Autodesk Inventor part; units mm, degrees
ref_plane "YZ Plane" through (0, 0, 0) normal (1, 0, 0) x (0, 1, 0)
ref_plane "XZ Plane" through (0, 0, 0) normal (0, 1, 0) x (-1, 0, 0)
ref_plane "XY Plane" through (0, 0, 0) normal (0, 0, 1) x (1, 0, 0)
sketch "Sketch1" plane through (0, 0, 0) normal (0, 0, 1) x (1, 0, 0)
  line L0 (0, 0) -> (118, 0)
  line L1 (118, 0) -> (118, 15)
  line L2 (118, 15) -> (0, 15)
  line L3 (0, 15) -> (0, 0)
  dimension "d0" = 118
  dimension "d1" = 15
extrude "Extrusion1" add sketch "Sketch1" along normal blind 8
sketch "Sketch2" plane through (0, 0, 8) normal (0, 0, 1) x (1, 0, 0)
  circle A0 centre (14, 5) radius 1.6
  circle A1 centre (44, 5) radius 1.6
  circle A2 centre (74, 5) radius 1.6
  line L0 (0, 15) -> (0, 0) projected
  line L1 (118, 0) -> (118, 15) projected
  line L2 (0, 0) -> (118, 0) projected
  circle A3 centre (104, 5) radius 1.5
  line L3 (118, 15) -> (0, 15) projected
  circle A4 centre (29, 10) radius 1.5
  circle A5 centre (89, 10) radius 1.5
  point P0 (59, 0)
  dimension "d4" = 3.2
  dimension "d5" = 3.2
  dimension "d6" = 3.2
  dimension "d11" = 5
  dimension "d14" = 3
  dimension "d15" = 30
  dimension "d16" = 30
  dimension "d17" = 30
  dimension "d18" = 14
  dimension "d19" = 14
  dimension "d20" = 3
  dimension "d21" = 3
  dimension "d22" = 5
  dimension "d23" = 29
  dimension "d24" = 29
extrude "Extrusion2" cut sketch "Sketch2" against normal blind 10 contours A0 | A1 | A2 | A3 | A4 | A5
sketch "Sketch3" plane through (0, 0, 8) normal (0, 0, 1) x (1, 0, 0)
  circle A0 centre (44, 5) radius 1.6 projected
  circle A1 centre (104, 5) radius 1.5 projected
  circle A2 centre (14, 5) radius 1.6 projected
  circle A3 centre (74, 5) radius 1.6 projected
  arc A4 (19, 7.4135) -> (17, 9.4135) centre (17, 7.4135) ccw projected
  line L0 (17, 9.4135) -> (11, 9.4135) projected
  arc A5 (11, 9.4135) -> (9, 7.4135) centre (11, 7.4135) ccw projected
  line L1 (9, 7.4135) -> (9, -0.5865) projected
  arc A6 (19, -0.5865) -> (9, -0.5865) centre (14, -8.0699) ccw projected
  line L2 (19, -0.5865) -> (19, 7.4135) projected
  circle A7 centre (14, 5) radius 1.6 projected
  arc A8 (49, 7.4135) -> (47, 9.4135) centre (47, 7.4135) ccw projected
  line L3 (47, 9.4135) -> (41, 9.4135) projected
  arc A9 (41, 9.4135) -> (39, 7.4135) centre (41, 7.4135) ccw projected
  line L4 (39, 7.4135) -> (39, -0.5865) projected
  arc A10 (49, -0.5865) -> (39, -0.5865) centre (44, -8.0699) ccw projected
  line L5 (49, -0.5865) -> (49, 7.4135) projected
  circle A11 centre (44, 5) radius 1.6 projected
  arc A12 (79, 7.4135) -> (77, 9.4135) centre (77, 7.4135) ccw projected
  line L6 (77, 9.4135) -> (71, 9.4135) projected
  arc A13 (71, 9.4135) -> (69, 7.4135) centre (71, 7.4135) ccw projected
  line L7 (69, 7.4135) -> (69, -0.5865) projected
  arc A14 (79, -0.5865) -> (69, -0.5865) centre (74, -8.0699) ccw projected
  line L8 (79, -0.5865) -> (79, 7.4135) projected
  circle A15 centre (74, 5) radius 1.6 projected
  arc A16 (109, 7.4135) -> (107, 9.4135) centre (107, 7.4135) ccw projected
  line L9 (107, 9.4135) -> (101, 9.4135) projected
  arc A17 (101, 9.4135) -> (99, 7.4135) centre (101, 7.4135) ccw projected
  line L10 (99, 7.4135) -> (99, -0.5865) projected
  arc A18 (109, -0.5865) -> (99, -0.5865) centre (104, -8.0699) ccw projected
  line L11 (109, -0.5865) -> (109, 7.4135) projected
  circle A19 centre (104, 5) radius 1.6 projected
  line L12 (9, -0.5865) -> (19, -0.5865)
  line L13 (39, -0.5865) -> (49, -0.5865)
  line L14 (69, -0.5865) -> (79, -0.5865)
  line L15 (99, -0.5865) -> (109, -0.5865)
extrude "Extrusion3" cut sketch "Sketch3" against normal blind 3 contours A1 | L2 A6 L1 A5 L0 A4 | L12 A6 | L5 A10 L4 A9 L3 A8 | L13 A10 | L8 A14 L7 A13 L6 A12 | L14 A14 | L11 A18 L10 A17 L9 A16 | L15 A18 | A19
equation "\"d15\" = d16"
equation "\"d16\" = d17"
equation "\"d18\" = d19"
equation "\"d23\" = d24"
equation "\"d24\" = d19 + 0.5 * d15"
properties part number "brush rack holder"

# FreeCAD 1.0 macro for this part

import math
import FreeCAD as App
import Part
import Sketcher


def add_polygon(sketch, points):
    """Adds a closed chain of lines whose ends are joined by coincident constraints."""
    first, n = sketch.GeometryCount, len(points)
    for a, b in zip(points, points[1:] + points[:1]):
        sketch.addGeometry(Part.LineSegment(App.Vector(*a, 0), App.Vector(*b, 0)), False)
    for i in range(n):
        sketch.addConstraint(Sketcher.Constraint("Coincident", first + i, 2, first + (i + 1) % n, 1))

doc = App.newDocument("Part")
body = doc.addObject("PartDesign::Body", "Body")

# Sketch on XY plane
sketch1 = body.newObject("Sketcher::SketchObject", "Sketch")
sketch1.AttachmentSupport = (doc.getObject("XY_Plane"), [""])
sketch1.MapMode = "FlatFace"
add_polygon(sketch1, [(0, 15), (0, 0), (118, 0), (118, 15)])  # lines 0-3
sketch1.addConstraint(Sketcher.Constraint("Vertical", 0))
sketch1.addConstraint(Sketcher.Constraint("Horizontal", 1))
sketch1.addConstraint(Sketcher.Constraint("Vertical", 2))
sketch1.addConstraint(Sketcher.Constraint("Horizontal", 3))
sketch1.addConstraint(Sketcher.Constraint("Coincident", 0, 2, -1, 1))
sketch1.addConstraint(Sketcher.Constraint("DistanceX", 1, 1, 1, 2, 118.0))
sketch1.addConstraint(Sketcher.Constraint("DistanceY", 0, 2, 0, 1, 15.0))
pad1 = body.newObject("PartDesign::Pad", "Pad")
pad1.Profile = sketch1
pad1.Length = 8

# Sketch on XY plane
sketch2 = body.newObject("Sketcher::SketchObject", "Sketch001")
sketch2.AttachmentSupport = (doc.getObject("XY_Plane"), [""])
sketch2.MapMode = "FlatFace"
sketch2.AttachmentOffset = App.Placement(App.Vector(0, 0, 8), App.Rotation())
sketch2.addGeometry(Part.Circle(App.Vector(14, 5, 0), App.Vector(0, 0, 1), 1.6), False)
sketch2.addGeometry(Part.Circle(App.Vector(44, 5, 0), App.Vector(0, 0, 1), 1.6), False)
sketch2.addGeometry(Part.Circle(App.Vector(74, 5, 0), App.Vector(0, 0, 1), 1.6), False)
sketch2.addGeometry(Part.Circle(App.Vector(104, 5, 0), App.Vector(0, 0, 1), 1.5), False)
sketch2.addGeometry(Part.Circle(App.Vector(29, 10, 0), App.Vector(0, 0, 1), 1.5), False)
sketch2.addGeometry(Part.Circle(App.Vector(89, 10, 0), App.Vector(0, 0, 1), 1.5), False)
sketch2.addConstraint(Sketcher.Constraint("Equal", 0, 1))
sketch2.addConstraint(Sketcher.Constraint("Equal", 1, 2))
sketch2.addConstraint(Sketcher.Constraint("Equal", 3, 4))
sketch2.addConstraint(Sketcher.Constraint("Equal", 4, 5))
sketch2.addConstraint(Sketcher.Constraint("Horizontal", 0, 3, 1, 3))
sketch2.addConstraint(Sketcher.Constraint("Horizontal", 1, 3, 2, 3))
sketch2.addConstraint(Sketcher.Constraint("Horizontal", 2, 3, 3, 3))
sketch2.addConstraint(Sketcher.Constraint("Horizontal", 4, 3, 5, 3))
sketch2.addConstraint(Sketcher.Constraint("Diameter", 3, 3.0))
sketch2.addConstraint(Sketcher.Constraint("Diameter", 0, 3.2))
sketch2.addConstraint(Sketcher.Constraint("DistanceX", -1, 1, 0, 3, 14.0))
sketch2.addConstraint(Sketcher.Constraint("DistanceY", -1, 1, 0, 3, 5.0))
sketch2.addConstraint(Sketcher.Constraint("DistanceX", -1, 1, 4, 3, 29.0))
sketch2.addConstraint(Sketcher.Constraint("DistanceX", 0, 3, 1, 3, 30.0))
sketch2.addConstraint(Sketcher.Constraint("DistanceX", 1, 3, 2, 3, 30.0))
sketch2.addConstraint(Sketcher.Constraint("DistanceX", 2, 3, 3, 3, 30.0))
sketch2.addConstraint(Sketcher.Constraint("DistanceY", 0, 3, 4, 3, 5.0))
sketch2.addConstraint(Sketcher.Constraint("DistanceX", -1, 1, 5, 3, 89.0))
pocket1 = body.newObject("PartDesign::Pocket", "Pocket")
pocket1.Profile = sketch2
pocket1.Length = 10

# Sketch on XY plane
sketch3 = body.newObject("Sketcher::SketchObject", "Sketch002")
sketch3.AttachmentSupport = (doc.getObject("XY_Plane"), [""])
sketch3.MapMode = "FlatFace"
sketch3.AttachmentOffset = App.Placement(App.Vector(0, 0, 8), App.Rotation())
sketch3.addGeometry(Part.LineSegment(App.Vector(109, -0.5865, 0), App.Vector(109, 7.4135, 0)), False)
sketch3.addGeometry(Part.ArcOfCircle(Part.Circle(App.Vector(107, 7.4135, 0), App.Vector(0, 0, 1), 2), math.radians(0), math.radians(90)), False)
sketch3.addGeometry(Part.LineSegment(App.Vector(107, 9.4135, 0), App.Vector(101, 9.4135, 0)), False)
sketch3.addGeometry(Part.ArcOfCircle(Part.Circle(App.Vector(101, 7.4135, 0), App.Vector(0, 0, 1), 2), math.radians(90), math.radians(180)), False)
sketch3.addGeometry(Part.LineSegment(App.Vector(99, 7.4135, 0), App.Vector(99, -0.5865, 0)), False)
sketch3.addGeometry(Part.LineSegment(App.Vector(99, -0.5865, 0), App.Vector(109, -0.5865, 0)), False)
sketch3.addGeometry(Part.LineSegment(App.Vector(19, -0.5865, 0), App.Vector(19, 7.4135, 0)), False)
sketch3.addGeometry(Part.ArcOfCircle(Part.Circle(App.Vector(17, 7.4135, 0), App.Vector(0, 0, 1), 2), math.radians(0), math.radians(90)), False)
sketch3.addGeometry(Part.LineSegment(App.Vector(17, 9.4135, 0), App.Vector(11, 9.4135, 0)), False)
sketch3.addGeometry(Part.ArcOfCircle(Part.Circle(App.Vector(11, 7.4135, 0), App.Vector(0, 0, 1), 2), math.radians(90), math.radians(180)), False)
sketch3.addGeometry(Part.LineSegment(App.Vector(9, 7.4135, 0), App.Vector(9, -0.5865, 0)), False)
sketch3.addGeometry(Part.LineSegment(App.Vector(9, -0.5865, 0), App.Vector(19, -0.5865, 0)), False)
sketch3.addGeometry(Part.Circle(App.Vector(14, 5, 0), App.Vector(0, 0, 1), 1.6), False)
sketch3.addGeometry(Part.LineSegment(App.Vector(49, -0.5865, 0), App.Vector(49, 7.4135, 0)), False)
sketch3.addGeometry(Part.ArcOfCircle(Part.Circle(App.Vector(47, 7.4135, 0), App.Vector(0, 0, 1), 2), math.radians(0), math.radians(90)), False)
sketch3.addGeometry(Part.LineSegment(App.Vector(47, 9.4135, 0), App.Vector(41, 9.4135, 0)), False)
sketch3.addGeometry(Part.ArcOfCircle(Part.Circle(App.Vector(41, 7.4135, 0), App.Vector(0, 0, 1), 2), math.radians(90), math.radians(180)), False)
sketch3.addGeometry(Part.LineSegment(App.Vector(39, 7.4135, 0), App.Vector(39, -0.5865, 0)), False)
sketch3.addGeometry(Part.LineSegment(App.Vector(39, -0.5865, 0), App.Vector(49, -0.5865, 0)), False)
sketch3.addGeometry(Part.Circle(App.Vector(44, 5, 0), App.Vector(0, 0, 1), 1.6), False)
sketch3.addGeometry(Part.LineSegment(App.Vector(79, -0.5865, 0), App.Vector(79, 7.4135, 0)), False)
sketch3.addGeometry(Part.ArcOfCircle(Part.Circle(App.Vector(77, 7.4135, 0), App.Vector(0, 0, 1), 2), math.radians(0), math.radians(90)), False)
sketch3.addGeometry(Part.LineSegment(App.Vector(77, 9.4135, 0), App.Vector(71, 9.4135, 0)), False)
sketch3.addGeometry(Part.ArcOfCircle(Part.Circle(App.Vector(71, 7.4135, 0), App.Vector(0, 0, 1), 2), math.radians(90), math.radians(180)), False)
sketch3.addGeometry(Part.LineSegment(App.Vector(69, 7.4135, 0), App.Vector(69, -0.5865, 0)), False)
sketch3.addGeometry(Part.LineSegment(App.Vector(69, -0.5865, 0), App.Vector(79, -0.5865, 0)), False)
sketch3.addGeometry(Part.Circle(App.Vector(74, 5, 0), App.Vector(0, 0, 1), 1.6), False)
sketch3.addConstraint(Sketcher.Constraint("Tangent", 0, 2, 1, 1))
sketch3.addConstraint(Sketcher.Constraint("Tangent", 1, 2, 2, 1))
sketch3.addConstraint(Sketcher.Constraint("Tangent", 2, 2, 3, 1))
sketch3.addConstraint(Sketcher.Constraint("Tangent", 3, 2, 4, 1))
sketch3.addConstraint(Sketcher.Constraint("Coincident", 4, 2, 5, 1))
sketch3.addConstraint(Sketcher.Constraint("Coincident", 5, 2, 0, 1))
sketch3.addConstraint(Sketcher.Constraint("Tangent", 6, 2, 7, 1))
sketch3.addConstraint(Sketcher.Constraint("Tangent", 7, 2, 8, 1))
sketch3.addConstraint(Sketcher.Constraint("Tangent", 8, 2, 9, 1))
sketch3.addConstraint(Sketcher.Constraint("Tangent", 9, 2, 10, 1))
sketch3.addConstraint(Sketcher.Constraint("Coincident", 10, 2, 11, 1))
sketch3.addConstraint(Sketcher.Constraint("Coincident", 11, 2, 6, 1))
sketch3.addConstraint(Sketcher.Constraint("Tangent", 13, 2, 14, 1))
sketch3.addConstraint(Sketcher.Constraint("Tangent", 14, 2, 15, 1))
sketch3.addConstraint(Sketcher.Constraint("Tangent", 15, 2, 16, 1))
sketch3.addConstraint(Sketcher.Constraint("Tangent", 16, 2, 17, 1))
sketch3.addConstraint(Sketcher.Constraint("Coincident", 17, 2, 18, 1))
sketch3.addConstraint(Sketcher.Constraint("Coincident", 18, 2, 13, 1))
sketch3.addConstraint(Sketcher.Constraint("Tangent", 20, 2, 21, 1))
sketch3.addConstraint(Sketcher.Constraint("Tangent", 21, 2, 22, 1))
sketch3.addConstraint(Sketcher.Constraint("Tangent", 22, 2, 23, 1))
sketch3.addConstraint(Sketcher.Constraint("Tangent", 23, 2, 24, 1))
sketch3.addConstraint(Sketcher.Constraint("Coincident", 24, 2, 25, 1))
sketch3.addConstraint(Sketcher.Constraint("Coincident", 25, 2, 20, 1))
sketch3.addConstraint(Sketcher.Constraint("Vertical", 0))
sketch3.addConstraint(Sketcher.Constraint("Horizontal", 2))
sketch3.addConstraint(Sketcher.Constraint("Vertical", 4))
sketch3.addConstraint(Sketcher.Constraint("Horizontal", 5))
sketch3.addConstraint(Sketcher.Constraint("Vertical", 6))
sketch3.addConstraint(Sketcher.Constraint("Horizontal", 8))
sketch3.addConstraint(Sketcher.Constraint("Vertical", 10))
sketch3.addConstraint(Sketcher.Constraint("Horizontal", 11))
sketch3.addConstraint(Sketcher.Constraint("Vertical", 13))
sketch3.addConstraint(Sketcher.Constraint("Horizontal", 15))
sketch3.addConstraint(Sketcher.Constraint("Vertical", 17))
sketch3.addConstraint(Sketcher.Constraint("Horizontal", 18))
sketch3.addConstraint(Sketcher.Constraint("Vertical", 20))
sketch3.addConstraint(Sketcher.Constraint("Horizontal", 22))
sketch3.addConstraint(Sketcher.Constraint("Vertical", 24))
sketch3.addConstraint(Sketcher.Constraint("Horizontal", 25))
sketch3.addConstraint(Sketcher.Constraint("Equal", 1, 3))
sketch3.addConstraint(Sketcher.Constraint("Equal", 3, 7))
sketch3.addConstraint(Sketcher.Constraint("Equal", 7, 9))
sketch3.addConstraint(Sketcher.Constraint("Equal", 9, 14))
sketch3.addConstraint(Sketcher.Constraint("Equal", 14, 16))
sketch3.addConstraint(Sketcher.Constraint("Equal", 12, 19))
sketch3.addConstraint(Sketcher.Constraint("Equal", 16, 21))
sketch3.addConstraint(Sketcher.Constraint("Equal", 21, 23))
sketch3.addConstraint(Sketcher.Constraint("Equal", 19, 26))
sketch3.addConstraint(Sketcher.Constraint("Horizontal", 3, 3, 7, 3))
sketch3.addConstraint(Sketcher.Constraint("Horizontal", 9, 3, 14, 3))
sketch3.addConstraint(Sketcher.Constraint("Horizontal", 12, 3, 19, 3))
sketch3.addConstraint(Sketcher.Constraint("Horizontal", 16, 3, 21, 3))
sketch3.addConstraint(Sketcher.Constraint("Horizontal", 19, 3, 26, 3))
sketch3.addConstraint(Sketcher.Constraint("Horizontal", 5, 2, 10, 2))
sketch3.addConstraint(Sketcher.Constraint("Horizontal", 11, 2, 17, 2))
sketch3.addConstraint(Sketcher.Constraint("Horizontal", 18, 2, 24, 2))
sketch3.addConstraint(Sketcher.Constraint("Equal", 2, 8))
sketch3.addConstraint(Sketcher.Constraint("Equal", 8, 15))
sketch3.addConstraint(Sketcher.Constraint("Equal", 15, 22))
sketch3.addConstraint(Sketcher.Constraint("Radius", 1, 2.0))
sketch3.addConstraint(Sketcher.Constraint("Diameter", 12, 3.2))
sketch3.addConstraint(Sketcher.Constraint("DistanceX", 2, 2, 2, 1, 6.0))
sketch3.addConstraint(Sketcher.Constraint("DistanceY", 0, 1, 0, 2, 8.0))
sketch3.addConstraint(Sketcher.Constraint("DistanceX", -1, 1, 1, 3, 107.0))
sketch3.addConstraint(Sketcher.Constraint("DistanceX", -1, 1, 7, 3, 17.0))
sketch3.addConstraint(Sketcher.Constraint("DistanceX", -1, 1, 12, 3, 14.0))
sketch3.addConstraint(Sketcher.Constraint("DistanceY", -1, 1, 12, 3, 5.0))
sketch3.addConstraint(Sketcher.Constraint("DistanceX", -1, 1, 14, 3, 47.0))
sketch3.addConstraint(Sketcher.Constraint("DistanceX", -1, 1, 19, 3, 44.0))
sketch3.addConstraint(Sketcher.Constraint("DistanceX", -1, 1, 21, 3, 77.0))
sketch3.addConstraint(Sketcher.Constraint("DistanceX", -1, 1, 26, 3, 74.0))
sketch3.addConstraint(Sketcher.Constraint("DistanceY", -1, 1, 1, 3, 7.4135))
pocket2 = body.newObject("PartDesign::Pocket", "Pocket001")
pocket2.Profile = sketch3
pocket2.Length = 3

doc.recompute()
